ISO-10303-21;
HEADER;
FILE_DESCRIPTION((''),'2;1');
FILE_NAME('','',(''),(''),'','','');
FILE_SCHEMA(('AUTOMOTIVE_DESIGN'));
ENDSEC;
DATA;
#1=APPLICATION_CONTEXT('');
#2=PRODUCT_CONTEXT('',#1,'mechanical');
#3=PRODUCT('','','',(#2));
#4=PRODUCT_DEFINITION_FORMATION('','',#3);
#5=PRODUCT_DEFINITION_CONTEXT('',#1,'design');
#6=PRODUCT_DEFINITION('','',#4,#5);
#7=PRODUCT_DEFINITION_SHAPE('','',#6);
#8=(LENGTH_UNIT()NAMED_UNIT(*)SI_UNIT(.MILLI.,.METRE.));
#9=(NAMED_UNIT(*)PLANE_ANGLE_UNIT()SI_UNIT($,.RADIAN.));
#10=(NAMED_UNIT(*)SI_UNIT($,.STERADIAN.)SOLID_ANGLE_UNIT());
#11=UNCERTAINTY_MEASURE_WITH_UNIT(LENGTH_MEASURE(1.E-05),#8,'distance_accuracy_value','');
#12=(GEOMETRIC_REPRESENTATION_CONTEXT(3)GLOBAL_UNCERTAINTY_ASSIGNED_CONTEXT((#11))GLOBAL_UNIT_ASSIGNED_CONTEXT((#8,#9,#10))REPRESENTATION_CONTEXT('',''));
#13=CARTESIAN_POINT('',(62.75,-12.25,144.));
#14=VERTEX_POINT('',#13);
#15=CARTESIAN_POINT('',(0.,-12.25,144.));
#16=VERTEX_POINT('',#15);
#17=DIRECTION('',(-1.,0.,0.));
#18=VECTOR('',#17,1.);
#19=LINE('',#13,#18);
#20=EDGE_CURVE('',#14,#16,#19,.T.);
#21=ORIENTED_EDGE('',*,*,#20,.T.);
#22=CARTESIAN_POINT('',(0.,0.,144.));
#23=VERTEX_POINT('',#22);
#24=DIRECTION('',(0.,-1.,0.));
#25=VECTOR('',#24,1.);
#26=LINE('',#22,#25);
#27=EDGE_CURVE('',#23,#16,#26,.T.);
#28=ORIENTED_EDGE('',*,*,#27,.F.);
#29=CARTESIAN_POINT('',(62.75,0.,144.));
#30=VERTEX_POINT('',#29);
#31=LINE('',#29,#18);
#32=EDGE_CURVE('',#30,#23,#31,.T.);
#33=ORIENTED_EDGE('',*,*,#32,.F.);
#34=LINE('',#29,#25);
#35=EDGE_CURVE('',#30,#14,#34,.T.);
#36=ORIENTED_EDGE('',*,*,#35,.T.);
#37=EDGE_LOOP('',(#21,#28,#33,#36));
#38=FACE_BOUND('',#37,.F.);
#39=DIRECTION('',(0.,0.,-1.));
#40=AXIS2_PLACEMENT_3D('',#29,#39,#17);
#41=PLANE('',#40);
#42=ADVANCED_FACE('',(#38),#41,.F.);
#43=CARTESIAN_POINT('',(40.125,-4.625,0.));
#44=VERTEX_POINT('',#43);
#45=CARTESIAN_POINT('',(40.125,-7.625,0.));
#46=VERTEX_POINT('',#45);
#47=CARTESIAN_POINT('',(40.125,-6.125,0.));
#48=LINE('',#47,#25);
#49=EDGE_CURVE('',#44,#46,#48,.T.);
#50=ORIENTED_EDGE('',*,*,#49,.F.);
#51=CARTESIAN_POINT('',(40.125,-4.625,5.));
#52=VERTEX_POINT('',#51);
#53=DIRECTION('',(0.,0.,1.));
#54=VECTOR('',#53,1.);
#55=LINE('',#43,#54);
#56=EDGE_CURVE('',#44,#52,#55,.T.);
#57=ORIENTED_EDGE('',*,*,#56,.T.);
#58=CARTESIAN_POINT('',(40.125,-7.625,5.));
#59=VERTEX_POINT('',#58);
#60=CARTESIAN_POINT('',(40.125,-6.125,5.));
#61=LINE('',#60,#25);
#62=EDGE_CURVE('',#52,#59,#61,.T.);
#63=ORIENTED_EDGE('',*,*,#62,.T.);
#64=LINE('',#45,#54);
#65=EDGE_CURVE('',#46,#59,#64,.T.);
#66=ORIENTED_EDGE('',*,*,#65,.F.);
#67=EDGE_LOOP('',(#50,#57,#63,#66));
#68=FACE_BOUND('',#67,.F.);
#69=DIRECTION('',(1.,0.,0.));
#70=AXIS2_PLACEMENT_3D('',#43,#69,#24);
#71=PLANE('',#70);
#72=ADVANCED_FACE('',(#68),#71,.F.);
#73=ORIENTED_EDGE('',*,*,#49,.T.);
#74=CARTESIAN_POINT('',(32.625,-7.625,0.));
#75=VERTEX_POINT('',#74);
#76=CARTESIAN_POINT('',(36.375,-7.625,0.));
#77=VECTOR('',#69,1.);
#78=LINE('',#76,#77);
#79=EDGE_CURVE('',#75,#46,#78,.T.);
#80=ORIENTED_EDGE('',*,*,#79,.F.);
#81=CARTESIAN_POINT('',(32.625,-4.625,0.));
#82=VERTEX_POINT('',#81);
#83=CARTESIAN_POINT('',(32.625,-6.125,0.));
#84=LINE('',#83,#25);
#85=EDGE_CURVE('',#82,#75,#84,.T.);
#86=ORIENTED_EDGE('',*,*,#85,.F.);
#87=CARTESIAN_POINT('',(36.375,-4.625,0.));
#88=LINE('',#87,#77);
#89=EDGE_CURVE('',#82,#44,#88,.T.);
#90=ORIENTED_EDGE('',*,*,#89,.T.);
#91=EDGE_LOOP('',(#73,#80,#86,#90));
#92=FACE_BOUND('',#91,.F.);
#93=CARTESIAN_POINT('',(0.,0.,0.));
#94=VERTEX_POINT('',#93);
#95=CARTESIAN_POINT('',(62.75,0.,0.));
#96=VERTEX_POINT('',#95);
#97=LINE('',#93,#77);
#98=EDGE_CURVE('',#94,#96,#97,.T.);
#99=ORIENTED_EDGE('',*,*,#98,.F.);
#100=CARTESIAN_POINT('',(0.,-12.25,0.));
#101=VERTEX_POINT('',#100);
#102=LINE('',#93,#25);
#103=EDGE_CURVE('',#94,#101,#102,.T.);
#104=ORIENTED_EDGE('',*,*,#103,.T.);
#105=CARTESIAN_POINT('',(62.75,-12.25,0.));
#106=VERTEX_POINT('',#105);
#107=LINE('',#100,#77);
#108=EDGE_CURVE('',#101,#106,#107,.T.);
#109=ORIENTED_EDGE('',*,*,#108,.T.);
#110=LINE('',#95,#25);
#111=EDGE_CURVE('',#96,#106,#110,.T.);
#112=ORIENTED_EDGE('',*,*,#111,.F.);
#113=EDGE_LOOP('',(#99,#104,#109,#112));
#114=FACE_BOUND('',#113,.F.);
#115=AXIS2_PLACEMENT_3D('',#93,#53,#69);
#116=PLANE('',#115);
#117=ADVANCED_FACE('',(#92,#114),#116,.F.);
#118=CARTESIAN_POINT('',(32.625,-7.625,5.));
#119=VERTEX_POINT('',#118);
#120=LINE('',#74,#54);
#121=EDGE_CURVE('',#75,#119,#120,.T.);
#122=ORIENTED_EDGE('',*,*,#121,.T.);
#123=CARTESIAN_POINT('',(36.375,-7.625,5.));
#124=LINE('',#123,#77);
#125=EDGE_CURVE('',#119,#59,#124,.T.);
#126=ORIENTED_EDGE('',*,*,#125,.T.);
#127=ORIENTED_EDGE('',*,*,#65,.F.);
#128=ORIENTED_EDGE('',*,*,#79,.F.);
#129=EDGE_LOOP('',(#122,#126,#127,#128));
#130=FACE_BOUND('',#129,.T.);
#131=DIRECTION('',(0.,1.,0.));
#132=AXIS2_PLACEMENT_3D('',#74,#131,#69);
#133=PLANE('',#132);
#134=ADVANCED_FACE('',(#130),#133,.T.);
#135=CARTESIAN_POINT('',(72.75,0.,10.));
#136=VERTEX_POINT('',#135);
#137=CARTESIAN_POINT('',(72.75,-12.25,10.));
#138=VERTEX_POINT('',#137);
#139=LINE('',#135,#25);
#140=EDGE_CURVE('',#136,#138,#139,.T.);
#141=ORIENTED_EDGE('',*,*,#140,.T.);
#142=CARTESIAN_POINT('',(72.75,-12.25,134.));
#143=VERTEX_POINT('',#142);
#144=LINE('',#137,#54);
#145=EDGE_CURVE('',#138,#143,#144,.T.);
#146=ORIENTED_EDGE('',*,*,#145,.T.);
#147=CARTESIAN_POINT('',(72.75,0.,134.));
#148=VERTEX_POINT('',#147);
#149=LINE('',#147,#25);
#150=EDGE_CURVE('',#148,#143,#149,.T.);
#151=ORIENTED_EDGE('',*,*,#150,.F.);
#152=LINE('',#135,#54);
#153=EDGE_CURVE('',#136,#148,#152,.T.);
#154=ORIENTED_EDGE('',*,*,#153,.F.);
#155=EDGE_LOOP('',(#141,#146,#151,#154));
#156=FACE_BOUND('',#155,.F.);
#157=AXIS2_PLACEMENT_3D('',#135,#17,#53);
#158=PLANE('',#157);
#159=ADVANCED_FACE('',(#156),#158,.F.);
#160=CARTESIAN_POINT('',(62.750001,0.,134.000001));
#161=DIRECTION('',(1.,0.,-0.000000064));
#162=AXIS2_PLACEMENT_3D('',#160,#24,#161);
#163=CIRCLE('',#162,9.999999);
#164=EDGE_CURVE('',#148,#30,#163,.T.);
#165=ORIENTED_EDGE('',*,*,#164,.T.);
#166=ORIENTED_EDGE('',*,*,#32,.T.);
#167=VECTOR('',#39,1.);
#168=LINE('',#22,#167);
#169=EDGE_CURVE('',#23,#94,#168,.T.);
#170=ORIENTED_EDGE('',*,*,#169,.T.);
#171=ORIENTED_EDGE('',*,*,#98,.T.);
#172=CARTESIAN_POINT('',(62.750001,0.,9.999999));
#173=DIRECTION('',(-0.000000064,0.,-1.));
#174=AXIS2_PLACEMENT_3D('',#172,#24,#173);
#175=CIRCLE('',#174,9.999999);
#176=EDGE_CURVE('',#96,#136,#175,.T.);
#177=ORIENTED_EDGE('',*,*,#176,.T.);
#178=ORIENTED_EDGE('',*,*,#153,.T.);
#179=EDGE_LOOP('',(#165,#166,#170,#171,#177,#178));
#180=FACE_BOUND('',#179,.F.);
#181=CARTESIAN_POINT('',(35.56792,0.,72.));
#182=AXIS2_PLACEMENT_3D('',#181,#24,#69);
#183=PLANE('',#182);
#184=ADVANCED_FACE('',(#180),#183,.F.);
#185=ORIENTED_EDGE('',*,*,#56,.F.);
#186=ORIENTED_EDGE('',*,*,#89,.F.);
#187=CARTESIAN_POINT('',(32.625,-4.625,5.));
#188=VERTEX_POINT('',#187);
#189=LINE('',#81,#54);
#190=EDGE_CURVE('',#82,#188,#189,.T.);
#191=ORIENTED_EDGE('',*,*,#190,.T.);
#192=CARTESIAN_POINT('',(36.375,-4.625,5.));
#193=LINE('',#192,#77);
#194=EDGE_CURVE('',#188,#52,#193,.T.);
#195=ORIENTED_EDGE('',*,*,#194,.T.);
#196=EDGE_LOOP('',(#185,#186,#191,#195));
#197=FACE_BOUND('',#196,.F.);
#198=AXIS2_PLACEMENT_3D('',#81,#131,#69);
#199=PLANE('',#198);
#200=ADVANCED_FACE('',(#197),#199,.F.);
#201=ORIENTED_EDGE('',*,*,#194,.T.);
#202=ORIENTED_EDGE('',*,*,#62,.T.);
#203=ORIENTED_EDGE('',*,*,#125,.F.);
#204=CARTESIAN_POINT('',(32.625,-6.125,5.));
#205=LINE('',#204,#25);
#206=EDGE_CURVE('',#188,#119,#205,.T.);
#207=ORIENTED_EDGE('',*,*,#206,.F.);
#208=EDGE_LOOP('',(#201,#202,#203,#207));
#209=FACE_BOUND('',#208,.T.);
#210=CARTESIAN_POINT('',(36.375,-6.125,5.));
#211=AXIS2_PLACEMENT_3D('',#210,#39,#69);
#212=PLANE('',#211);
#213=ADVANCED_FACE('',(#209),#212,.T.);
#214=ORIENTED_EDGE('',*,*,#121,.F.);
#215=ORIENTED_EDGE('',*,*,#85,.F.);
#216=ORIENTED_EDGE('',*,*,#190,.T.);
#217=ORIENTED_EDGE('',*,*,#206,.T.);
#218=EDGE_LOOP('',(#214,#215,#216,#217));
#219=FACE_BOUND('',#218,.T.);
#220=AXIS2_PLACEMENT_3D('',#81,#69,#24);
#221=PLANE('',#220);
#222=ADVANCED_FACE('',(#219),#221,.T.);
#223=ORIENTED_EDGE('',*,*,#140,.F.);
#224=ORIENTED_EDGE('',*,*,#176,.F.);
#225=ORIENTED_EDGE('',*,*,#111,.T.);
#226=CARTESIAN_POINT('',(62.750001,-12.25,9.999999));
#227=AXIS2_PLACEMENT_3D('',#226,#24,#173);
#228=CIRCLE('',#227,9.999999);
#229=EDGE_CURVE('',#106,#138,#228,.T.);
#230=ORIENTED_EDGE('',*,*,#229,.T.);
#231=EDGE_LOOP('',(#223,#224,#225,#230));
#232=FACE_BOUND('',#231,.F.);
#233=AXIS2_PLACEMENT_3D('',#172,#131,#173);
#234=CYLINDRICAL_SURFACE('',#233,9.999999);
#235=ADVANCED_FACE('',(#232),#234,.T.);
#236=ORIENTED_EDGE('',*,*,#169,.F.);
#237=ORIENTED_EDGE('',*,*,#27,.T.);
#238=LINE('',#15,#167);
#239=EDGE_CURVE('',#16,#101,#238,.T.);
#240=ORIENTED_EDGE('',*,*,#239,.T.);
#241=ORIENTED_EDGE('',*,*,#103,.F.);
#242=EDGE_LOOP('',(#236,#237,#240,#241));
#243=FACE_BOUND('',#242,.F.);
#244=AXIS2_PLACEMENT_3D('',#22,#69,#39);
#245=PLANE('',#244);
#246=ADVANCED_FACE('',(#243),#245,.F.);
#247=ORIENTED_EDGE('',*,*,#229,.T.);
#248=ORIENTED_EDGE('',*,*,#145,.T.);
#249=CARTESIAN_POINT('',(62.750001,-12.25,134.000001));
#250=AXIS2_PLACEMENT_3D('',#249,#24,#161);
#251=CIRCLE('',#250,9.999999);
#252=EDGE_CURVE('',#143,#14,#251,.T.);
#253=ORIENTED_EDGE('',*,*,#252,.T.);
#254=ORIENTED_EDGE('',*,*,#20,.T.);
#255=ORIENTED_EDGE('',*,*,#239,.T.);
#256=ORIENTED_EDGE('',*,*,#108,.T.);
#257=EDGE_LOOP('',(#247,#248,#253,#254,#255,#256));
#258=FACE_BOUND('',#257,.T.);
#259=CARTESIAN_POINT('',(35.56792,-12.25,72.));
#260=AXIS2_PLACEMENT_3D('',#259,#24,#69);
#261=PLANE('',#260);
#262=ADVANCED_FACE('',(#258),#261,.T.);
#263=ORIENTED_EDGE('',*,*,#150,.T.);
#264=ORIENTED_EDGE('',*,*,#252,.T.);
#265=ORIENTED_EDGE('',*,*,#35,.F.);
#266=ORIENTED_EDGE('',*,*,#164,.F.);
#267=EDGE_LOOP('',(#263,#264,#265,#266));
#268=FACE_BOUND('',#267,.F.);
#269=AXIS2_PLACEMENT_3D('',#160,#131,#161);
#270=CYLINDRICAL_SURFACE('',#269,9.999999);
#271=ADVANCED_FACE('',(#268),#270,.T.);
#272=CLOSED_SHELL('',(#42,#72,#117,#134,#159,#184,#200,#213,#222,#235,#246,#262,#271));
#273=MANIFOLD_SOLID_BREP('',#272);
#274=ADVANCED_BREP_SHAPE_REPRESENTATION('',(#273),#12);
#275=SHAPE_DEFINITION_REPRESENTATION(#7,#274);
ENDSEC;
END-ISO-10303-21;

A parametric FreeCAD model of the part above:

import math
import FreeCAD as App
import Part
import Sketcher

V = App.Vector
Q = App.Units.Quantity

doc = App.newDocument("Part")
body = doc.addObject("PartDesign::Body", "Body")

# Sketch on XZ plane
sketch1 = body.newObject("Sketcher::SketchObject", "Sketch")
sketch1.AttachmentSupport = (doc.getObject("XZ_Plane"), [""])
sketch1.MapMode = "FlatFace"
sketch1.addGeometry([
    Part.ArcOfCircle(Part.Circle(V(63, 134, 0), V(0, 0, 1), 10), math.radians(0), math.radians(90)),  # 0
    Part.LineSegment(V(63, 144, 0), V(0, 144, 0)),  # 1
    Part.LineSegment(V(0, 144, 0), V(0, 0, 0)),  # 2
    Part.LineSegment(V(0, 0, 0), V(63, 0, 0)),  # 3
    Part.ArcOfCircle(Part.Circle(V(63, 10, 0), V(0, 0, 1), 10), math.radians(-90), math.radians(0)),  # 4
    Part.LineSegment(V(73, 10, 0), V(73, 134, 0)),  # 5
], False)
sketch1.addConstraint([
    Sketcher.Constraint("Tangent", 0, 2, 1, 1),
    Sketcher.Constraint("Coincident", 1, 2, 2, 1),
    Sketcher.Constraint("Coincident", 2, 2, 3, 1),
    Sketcher.Constraint("Tangent", 3, 2, 4, 1),
    Sketcher.Constraint("Tangent", 4, 2, 5, 1),
    Sketcher.Constraint("Tangent", 5, 2, 0, 1),
    Sketcher.Constraint("Horizontal", 1),
    Sketcher.Constraint("Vertical", 2),
    Sketcher.Constraint("Horizontal", 3),
    Sketcher.Constraint("Vertical", 5),
    Sketcher.Constraint("Coincident", 2, 2, -1, 1),
    Sketcher.Constraint("Equal", 0, 4),
    Sketcher.Constraint("Radius", 0, Q("9.999999 mm")),
    Sketcher.Constraint("DistanceY", 2, 2, 2, 1, Q("144 mm")),
    Sketcher.Constraint("DistanceX", 1, 2, 1, 1, Q("62.75 mm")),
])
pad1 = body.newObject("PartDesign::Pad", "Pad")
pad1.Profile = sketch1
pad1.Length = 12.25

# Sketch on XY plane
sketch2 = body.newObject("Sketcher::SketchObject", "Sketch001")
sketch2.AttachmentSupport = (doc.getObject("XY_Plane"), [""])
sketch2.MapMode = "FlatFace"
sketch2.addGeometry([
    Part.LineSegment(V(32.6, -7.6, 0), V(32.6, -4.6, 0)),
    Part.LineSegment(V(32.6, -4.6, 0), V(40.1, -4.6, 0)),
    Part.LineSegment(V(40.1, -4.6, 0), V(40.1, -7.6, 0)),
    Part.LineSegment(V(40.1, -7.6, 0), V(32.6, -7.6, 0)),
], False)
sketch2.addConstraint([
    Sketcher.Constraint("Coincident", 0, 2, 1, 1),
    Sketcher.Constraint("Coincident", 1, 2, 2, 1),
    Sketcher.Constraint("Coincident", 2, 2, 3, 1),
    Sketcher.Constraint("Coincident", 3, 2, 0, 1),
    Sketcher.Constraint("Vertical", 0),
    Sketcher.Constraint("Horizontal", 1),
    Sketcher.Constraint("Vertical", 2),
    Sketcher.Constraint("Horizontal", 3),
    Sketcher.Constraint("DistanceY", 0, 1, 0, 2, Q("3 mm")),
    Sketcher.Constraint("DistanceX", 1, 1, 1, 2, Q("7.5 mm")),
    Sketcher.Constraint("DistanceX", -1, 1, 0, 2, Q("32.625 mm")),
    Sketcher.Constraint("DistanceY", 0, 2, -1, 1, Q("4.625 mm")),
])
pocket1 = body.newObject("PartDesign::Pocket", "Pocket")
pocket1.Profile = sketch2
pocket1.Length = 5
pocket1.Reversed = True

doc.recompute()
